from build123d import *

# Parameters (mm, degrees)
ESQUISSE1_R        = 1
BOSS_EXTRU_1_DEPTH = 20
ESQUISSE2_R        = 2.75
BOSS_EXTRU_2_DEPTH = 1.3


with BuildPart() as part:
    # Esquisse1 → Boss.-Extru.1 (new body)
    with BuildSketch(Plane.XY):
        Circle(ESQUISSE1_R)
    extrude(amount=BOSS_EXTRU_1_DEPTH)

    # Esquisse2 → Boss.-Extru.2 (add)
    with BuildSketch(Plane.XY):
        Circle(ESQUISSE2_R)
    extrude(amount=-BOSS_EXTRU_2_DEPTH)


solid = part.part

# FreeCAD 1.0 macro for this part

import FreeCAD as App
import Part
import Sketcher

V = App.Vector
Q = App.Units.Quantity

doc = App.newDocument("Part")
body = doc.addObject("PartDesign::Body", "Body")

sketch1 = body.newObject("Sketcher::SketchObject", "Sketch")
sketch1.AttachmentSupport = (doc.getObject("XY_Plane"), [""])
sketch1.MapMode = "FlatFace"
sketch1.addGeometry(Part.Circle(V(0, 0, 0), V(0, 0, 1), 1), False)
sketch1.addConstraint([
    Sketcher.Constraint("Coincident", 0, 3, -1, 1),
    Sketcher.Constraint("Diameter", 0, Q("2 mm")),
])
pad1 = body.newObject("PartDesign::Pad", "Pad")
pad1.Profile = sketch1
pad1.Length = 20

sketch2 = body.newObject("Sketcher::SketchObject", "Sketch001")
sketch2.AttachmentSupport = (doc.getObject("XY_Plane"), [""])
sketch2.MapMode = "FlatFace"
sketch2.addGeometry(Part.Circle(V(0, 0, 0), V(0, 0, 1), 2.8), False)
sketch2.addConstraint([
    Sketcher.Constraint("Coincident", 0, 3, -1, 1),
    Sketcher.Constraint("Diameter", 0, Q("5.5 mm")),
])
pad2 = body.newObject("PartDesign::Pad", "Pad001")
pad2.Profile = sketch2
pad2.Length = 1.3
pad2.Reversed = True

doc.recompute()
